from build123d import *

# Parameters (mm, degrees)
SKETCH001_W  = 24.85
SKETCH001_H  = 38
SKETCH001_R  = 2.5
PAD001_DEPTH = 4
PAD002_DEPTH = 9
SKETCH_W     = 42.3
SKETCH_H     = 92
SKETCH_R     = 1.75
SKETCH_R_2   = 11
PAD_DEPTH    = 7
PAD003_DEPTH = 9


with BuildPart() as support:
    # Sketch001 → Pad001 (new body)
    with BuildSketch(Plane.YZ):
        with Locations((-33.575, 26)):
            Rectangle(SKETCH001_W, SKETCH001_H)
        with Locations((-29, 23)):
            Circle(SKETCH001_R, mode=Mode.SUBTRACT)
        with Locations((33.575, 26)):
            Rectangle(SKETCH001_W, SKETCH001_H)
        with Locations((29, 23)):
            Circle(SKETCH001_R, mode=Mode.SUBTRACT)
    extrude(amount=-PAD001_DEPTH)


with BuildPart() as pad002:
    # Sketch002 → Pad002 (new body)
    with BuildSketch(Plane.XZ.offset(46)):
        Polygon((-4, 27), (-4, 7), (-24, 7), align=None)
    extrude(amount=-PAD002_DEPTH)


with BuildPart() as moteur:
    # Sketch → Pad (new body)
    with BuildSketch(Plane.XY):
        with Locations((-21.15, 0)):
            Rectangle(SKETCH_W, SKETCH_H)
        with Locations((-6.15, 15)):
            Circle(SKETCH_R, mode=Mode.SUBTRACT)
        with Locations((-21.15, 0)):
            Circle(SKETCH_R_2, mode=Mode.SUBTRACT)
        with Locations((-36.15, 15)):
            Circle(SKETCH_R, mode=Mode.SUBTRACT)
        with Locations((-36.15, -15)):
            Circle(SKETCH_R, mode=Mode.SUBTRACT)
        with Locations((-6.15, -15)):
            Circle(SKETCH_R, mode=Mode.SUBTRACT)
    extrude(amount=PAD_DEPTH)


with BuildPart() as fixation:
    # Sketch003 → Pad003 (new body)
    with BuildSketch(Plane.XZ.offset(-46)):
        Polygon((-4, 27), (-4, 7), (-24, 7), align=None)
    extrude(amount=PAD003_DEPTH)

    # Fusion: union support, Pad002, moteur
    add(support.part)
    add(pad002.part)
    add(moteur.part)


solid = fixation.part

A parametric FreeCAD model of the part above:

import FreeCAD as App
import Part
import Sketcher
from FreeCAD import Vector

doc = App.newDocument("Part")
body = doc.addObject("PartDesign::Body", "Body")
body.AllowCompound = True

sketch1 = body.newObject("Sketcher::SketchObject", "Sketch")
sketch1.AttachmentSupport = (doc.getObject("YZ_Plane"), [""])
sketch1.MapMode = "FlatFace"
sketch1.addGeometry([
    Part.LineSegment(Vector(-46, 45, 0), Vector(-46, 7, 0)),
    Part.LineSegment(Vector(-46, 7, 0), Vector(-21.1, 7, 0)),
    Part.LineSegment(Vector(-21.1, 7, 0), Vector(-21.1, 45, 0)),
    Part.LineSegment(Vector(-21.1, 45, 0), Vector(-46, 45, 0)),
    Part.Circle(Vector(-29, 23, 0), Vector(0, 0, 1), 2.5),
    Part.LineSegment(Vector(21.1, 45, 0), Vector(21.1, 7, 0)),
    Part.LineSegment(Vector(21.1, 7, 0), Vector(46, 7, 0)),
    Part.LineSegment(Vector(46, 7, 0), Vector(46, 45, 0)),
    Part.LineSegment(Vector(46, 45, 0), Vector(21.1, 45, 0)),
    Part.Circle(Vector(29, 23, 0), Vector(0, 0, 1), 2.5),
], False)
sketch1.addConstraint([
    Sketcher.Constraint("Coincident", 0, 2, 1, 1),
    Sketcher.Constraint("Coincident", 1, 2, 2, 1),
    Sketcher.Constraint("Coincident", 2, 2, 3, 1),
    Sketcher.Constraint("Coincident", 3, 2, 0, 1),
    Sketcher.Constraint("Coincident", 5, 2, 6, 1),
    Sketcher.Constraint("Coincident", 6, 2, 7, 1),
    Sketcher.Constraint("Coincident", 7, 2, 8, 1),
    Sketcher.Constraint("Coincident", 8, 2, 5, 1),
    Sketcher.Constraint("Vertical", 0),
    Sketcher.Constraint("Horizontal", 1),
    Sketcher.Constraint("Vertical", 2),
    Sketcher.Constraint("Horizontal", 3),
    Sketcher.Constraint("Vertical", 5),
    Sketcher.Constraint("Horizontal", 6),
    Sketcher.Constraint("Vertical", 7),
    Sketcher.Constraint("Horizontal", 8),
    Sketcher.Constraint("Equal", 4, 9),
    Sketcher.Constraint("Symmetric", 4, 3, 9, 3, -2),
    Sketcher.Constraint("Symmetric", 1, 2, 5, 2, -2),
    Sketcher.Constraint("Symmetric", 3, 2, 7, 2, -2),
    Sketcher.Constraint("Diameter", 4, 5.0),
    Sketcher.Constraint("DistanceY", 0, 2, 0, 1, 38.0),
    Sketcher.Constraint("DistanceX", 4, 3, -1, 1, 29.0),
    Sketcher.Constraint("DistanceY", -1, 1, 4, 3, 23.0),
    Sketcher.Constraint("DistanceX", 0, 2, -1, 1, 46.0),
    Sketcher.Constraint("DistanceY", -1, 1, 0, 2, 7.0),
    Sketcher.Constraint("DistanceX", 1, 1, 1, 2, 24.85),
])
pad1 = body.newObject("PartDesign::Pad", "Pad")
pad1.Profile = sketch1
pad1.Length = 4
pad1.Reversed = True
body2 = doc.addObject("PartDesign::Body", "Body001")

sketch2 = body2.newObject("Sketcher::SketchObject", "Sketch001")
sketch2.AttachmentSupport = (doc.getObject("XZ_Plane001"), [""])
sketch2.MapMode = "FlatFace"
sketch2.AttachmentOffset = App.Placement(Vector(0, 0, 46), App.Rotation())
sketch2.addGeometry([
    Part.LineSegment(Vector(-4, 7, 0), Vector(-4, 27, 0)),
    Part.LineSegment(Vector(-4, 27, 0), Vector(-24, 7, 0)),
    Part.LineSegment(Vector(-24, 7, 0), Vector(-4, 7, 0)),
], False)
sketch2.addConstraint([
    Sketcher.Constraint("Coincident", 0, 2, 1, 1),
    Sketcher.Constraint("Coincident", 1, 2, 2, 1),
    Sketcher.Constraint("Coincident", 2, 2, 0, 1),
    Sketcher.Constraint("Vertical", 0),
    Sketcher.Constraint("Horizontal", 2),
    Sketcher.Constraint("Equal", 2, 0),
    Sketcher.Constraint("DistanceX", 2, 1, 2, 2, 20.0),
    Sketcher.Constraint("DistanceX", 0, 2, -1, 1, 4.0),
    Sketcher.Constraint("DistanceY", -1, 1, 0, 2, 27.0),
])
pad2 = body2.newObject("PartDesign::Pad", "Pad001")
pad2.Profile = sketch2
pad2.Length = 9
pad2.Reversed = True
body3 = doc.addObject("PartDesign::Body", "Body002")

sketch3 = body3.newObject("Sketcher::SketchObject", "Sketch002")
sketch3.AttachmentSupport = (doc.getObject("XY_Plane002"), [""])
sketch3.MapMode = "FlatFace"
sketch3.addGeometry([
    Part.LineSegment(Vector(-42.3, 46, 0), Vector(-42.3, -46, 0)),
    Part.LineSegment(Vector(-42.3, -46, 0), Vector(0, -46, 0)),
    Part.LineSegment(Vector(0, -46, 0), Vector(0, 46, 0)),
    Part.LineSegment(Vector(0, 46, 0), Vector(-42.3, 46, 0)),
    Part.Circle(Vector(-36.1, -15, 0), Vector(0, 0, 1), 1.8),
    Part.Circle(Vector(-6.2, -15, 0), Vector(0, 0, 1), 1.8),
    Part.Circle(Vector(-36.1, 15, 0), Vector(0, 0, 1), 1.8),
    Part.Circle(Vector(-21.1, 0, 0), Vector(0, 0, 1), 11),
    Part.Circle(Vector(-6.2, 15, 0), Vector(0, 0, 1), 1.8),
], False)
sketch3.addConstraint([
    Sketcher.Constraint("Coincident", 0, 2, 1, 1),
    Sketcher.Constraint("Coincident", 1, 2, 2, 1),
    Sketcher.Constraint("Coincident", 2, 2, 3, 1),
    Sketcher.Constraint("Coincident", 3, 2, 0, 1),
    Sketcher.Constraint("Vertical", 0),
    Sketcher.Constraint("Horizontal", 1),
    Sketcher.Constraint("Vertical", 2),
    Sketcher.Constraint("Horizontal", 3),
    Sketcher.Constraint("Equal", 4, 5),
    Sketcher.Constraint("Equal", 5, 6),
    Sketcher.Constraint("Equal", 6, 8),
    Sketcher.Constraint("Symmetric", 1, 2, 2, 2, -1, 1),
    Sketcher.Constraint("Symmetric", 4, 3, 6, 3, -1),
    Sketcher.Constraint("Symmetric", 5, 3, 8, 3, -1),
    Sketcher.Constraint("PointOnObject", 7, 3, -1),
    Sketcher.Constraint("Horizontal", 4, 3, 5, 3),
    Sketcher.Constraint("Diameter", 7, 22.0),
    Sketcher.Constraint("Diameter", 4, 3.5),
    Sketcher.Constraint("DistanceY", 0, 2, 0, 1, 92.0),
    Sketcher.Constraint("DistanceX", 1, 1, 1, 2, 42.3),
    Sketcher.Constraint("DistanceY", 4, 3, -1, 1, 15.0),
    Sketcher.Constraint("DistanceX", 4, 3, 5, 3, 30.0),
    Sketcher.Constraint("DistanceX", 7, 3, 5, 3, 15.0),
    Sketcher.Constraint("DistanceX", 4, 3, -1, 1, 36.15),
])
pad3 = body3.newObject("PartDesign::Pad", "Pad002")
pad3.Profile = sketch3
pad3.Length = 7
body4 = doc.addObject("PartDesign::Body", "Body003")
body4.AllowCompound = True

sketch4 = body4.newObject("Sketcher::SketchObject", "Sketch003")
sketch4.AttachmentSupport = (doc.getObject("XZ_Plane003"), [""])
sketch4.MapMode = "FlatFace"
sketch4.AttachmentOffset = App.Placement(Vector(0, 0, -46), App.Rotation())
sketch4.addGeometry([
    Part.LineSegment(Vector(-4, 7, 0), Vector(-4, 27, 0)),
    Part.LineSegment(Vector(-4, 27, 0), Vector(-24, 7, 0)),
    Part.LineSegment(Vector(-24, 7, 0), Vector(-4, 7, 0)),
], False)
sketch4.addConstraint([
    Sketcher.Constraint("Coincident", 0, 2, 1, 1),
    Sketcher.Constraint("Coincident", 1, 2, 2, 1),
    Sketcher.Constraint("Coincident", 2, 2, 0, 1),
    Sketcher.Constraint("Vertical", 0),
    Sketcher.Constraint("Horizontal", 2),
    Sketcher.Constraint("Equal", 2, 0),
    Sketcher.Constraint("DistanceX", 2, 1, 2, 2, 20.0),
    Sketcher.Constraint("DistanceX", 0, 2, -1, 1, 4.0),
    Sketcher.Constraint("DistanceY", -1, 1, 0, 2, 27.0),
])
pad4 = body4.newObject("PartDesign::Pad", "Pad003")
pad4.Profile = sketch4
pad4.Length = 9
doc.recompute()

boolean = body4.newObject("PartDesign::Boolean", "Boolean")
boolean.Type = "Fuse"
boolean.addObjects([body])
doc.recompute()

boolean2 = body4.newObject("PartDesign::Boolean", "Boolean001")
boolean2.Type = "Fuse"
boolean2.addObjects([body2])
doc.recompute()

boolean3 = body4.newObject("PartDesign::Boolean", "Boolean002")
boolean3.Type = "Fuse"
boolean3.addObjects([body3])

doc.recompute()
